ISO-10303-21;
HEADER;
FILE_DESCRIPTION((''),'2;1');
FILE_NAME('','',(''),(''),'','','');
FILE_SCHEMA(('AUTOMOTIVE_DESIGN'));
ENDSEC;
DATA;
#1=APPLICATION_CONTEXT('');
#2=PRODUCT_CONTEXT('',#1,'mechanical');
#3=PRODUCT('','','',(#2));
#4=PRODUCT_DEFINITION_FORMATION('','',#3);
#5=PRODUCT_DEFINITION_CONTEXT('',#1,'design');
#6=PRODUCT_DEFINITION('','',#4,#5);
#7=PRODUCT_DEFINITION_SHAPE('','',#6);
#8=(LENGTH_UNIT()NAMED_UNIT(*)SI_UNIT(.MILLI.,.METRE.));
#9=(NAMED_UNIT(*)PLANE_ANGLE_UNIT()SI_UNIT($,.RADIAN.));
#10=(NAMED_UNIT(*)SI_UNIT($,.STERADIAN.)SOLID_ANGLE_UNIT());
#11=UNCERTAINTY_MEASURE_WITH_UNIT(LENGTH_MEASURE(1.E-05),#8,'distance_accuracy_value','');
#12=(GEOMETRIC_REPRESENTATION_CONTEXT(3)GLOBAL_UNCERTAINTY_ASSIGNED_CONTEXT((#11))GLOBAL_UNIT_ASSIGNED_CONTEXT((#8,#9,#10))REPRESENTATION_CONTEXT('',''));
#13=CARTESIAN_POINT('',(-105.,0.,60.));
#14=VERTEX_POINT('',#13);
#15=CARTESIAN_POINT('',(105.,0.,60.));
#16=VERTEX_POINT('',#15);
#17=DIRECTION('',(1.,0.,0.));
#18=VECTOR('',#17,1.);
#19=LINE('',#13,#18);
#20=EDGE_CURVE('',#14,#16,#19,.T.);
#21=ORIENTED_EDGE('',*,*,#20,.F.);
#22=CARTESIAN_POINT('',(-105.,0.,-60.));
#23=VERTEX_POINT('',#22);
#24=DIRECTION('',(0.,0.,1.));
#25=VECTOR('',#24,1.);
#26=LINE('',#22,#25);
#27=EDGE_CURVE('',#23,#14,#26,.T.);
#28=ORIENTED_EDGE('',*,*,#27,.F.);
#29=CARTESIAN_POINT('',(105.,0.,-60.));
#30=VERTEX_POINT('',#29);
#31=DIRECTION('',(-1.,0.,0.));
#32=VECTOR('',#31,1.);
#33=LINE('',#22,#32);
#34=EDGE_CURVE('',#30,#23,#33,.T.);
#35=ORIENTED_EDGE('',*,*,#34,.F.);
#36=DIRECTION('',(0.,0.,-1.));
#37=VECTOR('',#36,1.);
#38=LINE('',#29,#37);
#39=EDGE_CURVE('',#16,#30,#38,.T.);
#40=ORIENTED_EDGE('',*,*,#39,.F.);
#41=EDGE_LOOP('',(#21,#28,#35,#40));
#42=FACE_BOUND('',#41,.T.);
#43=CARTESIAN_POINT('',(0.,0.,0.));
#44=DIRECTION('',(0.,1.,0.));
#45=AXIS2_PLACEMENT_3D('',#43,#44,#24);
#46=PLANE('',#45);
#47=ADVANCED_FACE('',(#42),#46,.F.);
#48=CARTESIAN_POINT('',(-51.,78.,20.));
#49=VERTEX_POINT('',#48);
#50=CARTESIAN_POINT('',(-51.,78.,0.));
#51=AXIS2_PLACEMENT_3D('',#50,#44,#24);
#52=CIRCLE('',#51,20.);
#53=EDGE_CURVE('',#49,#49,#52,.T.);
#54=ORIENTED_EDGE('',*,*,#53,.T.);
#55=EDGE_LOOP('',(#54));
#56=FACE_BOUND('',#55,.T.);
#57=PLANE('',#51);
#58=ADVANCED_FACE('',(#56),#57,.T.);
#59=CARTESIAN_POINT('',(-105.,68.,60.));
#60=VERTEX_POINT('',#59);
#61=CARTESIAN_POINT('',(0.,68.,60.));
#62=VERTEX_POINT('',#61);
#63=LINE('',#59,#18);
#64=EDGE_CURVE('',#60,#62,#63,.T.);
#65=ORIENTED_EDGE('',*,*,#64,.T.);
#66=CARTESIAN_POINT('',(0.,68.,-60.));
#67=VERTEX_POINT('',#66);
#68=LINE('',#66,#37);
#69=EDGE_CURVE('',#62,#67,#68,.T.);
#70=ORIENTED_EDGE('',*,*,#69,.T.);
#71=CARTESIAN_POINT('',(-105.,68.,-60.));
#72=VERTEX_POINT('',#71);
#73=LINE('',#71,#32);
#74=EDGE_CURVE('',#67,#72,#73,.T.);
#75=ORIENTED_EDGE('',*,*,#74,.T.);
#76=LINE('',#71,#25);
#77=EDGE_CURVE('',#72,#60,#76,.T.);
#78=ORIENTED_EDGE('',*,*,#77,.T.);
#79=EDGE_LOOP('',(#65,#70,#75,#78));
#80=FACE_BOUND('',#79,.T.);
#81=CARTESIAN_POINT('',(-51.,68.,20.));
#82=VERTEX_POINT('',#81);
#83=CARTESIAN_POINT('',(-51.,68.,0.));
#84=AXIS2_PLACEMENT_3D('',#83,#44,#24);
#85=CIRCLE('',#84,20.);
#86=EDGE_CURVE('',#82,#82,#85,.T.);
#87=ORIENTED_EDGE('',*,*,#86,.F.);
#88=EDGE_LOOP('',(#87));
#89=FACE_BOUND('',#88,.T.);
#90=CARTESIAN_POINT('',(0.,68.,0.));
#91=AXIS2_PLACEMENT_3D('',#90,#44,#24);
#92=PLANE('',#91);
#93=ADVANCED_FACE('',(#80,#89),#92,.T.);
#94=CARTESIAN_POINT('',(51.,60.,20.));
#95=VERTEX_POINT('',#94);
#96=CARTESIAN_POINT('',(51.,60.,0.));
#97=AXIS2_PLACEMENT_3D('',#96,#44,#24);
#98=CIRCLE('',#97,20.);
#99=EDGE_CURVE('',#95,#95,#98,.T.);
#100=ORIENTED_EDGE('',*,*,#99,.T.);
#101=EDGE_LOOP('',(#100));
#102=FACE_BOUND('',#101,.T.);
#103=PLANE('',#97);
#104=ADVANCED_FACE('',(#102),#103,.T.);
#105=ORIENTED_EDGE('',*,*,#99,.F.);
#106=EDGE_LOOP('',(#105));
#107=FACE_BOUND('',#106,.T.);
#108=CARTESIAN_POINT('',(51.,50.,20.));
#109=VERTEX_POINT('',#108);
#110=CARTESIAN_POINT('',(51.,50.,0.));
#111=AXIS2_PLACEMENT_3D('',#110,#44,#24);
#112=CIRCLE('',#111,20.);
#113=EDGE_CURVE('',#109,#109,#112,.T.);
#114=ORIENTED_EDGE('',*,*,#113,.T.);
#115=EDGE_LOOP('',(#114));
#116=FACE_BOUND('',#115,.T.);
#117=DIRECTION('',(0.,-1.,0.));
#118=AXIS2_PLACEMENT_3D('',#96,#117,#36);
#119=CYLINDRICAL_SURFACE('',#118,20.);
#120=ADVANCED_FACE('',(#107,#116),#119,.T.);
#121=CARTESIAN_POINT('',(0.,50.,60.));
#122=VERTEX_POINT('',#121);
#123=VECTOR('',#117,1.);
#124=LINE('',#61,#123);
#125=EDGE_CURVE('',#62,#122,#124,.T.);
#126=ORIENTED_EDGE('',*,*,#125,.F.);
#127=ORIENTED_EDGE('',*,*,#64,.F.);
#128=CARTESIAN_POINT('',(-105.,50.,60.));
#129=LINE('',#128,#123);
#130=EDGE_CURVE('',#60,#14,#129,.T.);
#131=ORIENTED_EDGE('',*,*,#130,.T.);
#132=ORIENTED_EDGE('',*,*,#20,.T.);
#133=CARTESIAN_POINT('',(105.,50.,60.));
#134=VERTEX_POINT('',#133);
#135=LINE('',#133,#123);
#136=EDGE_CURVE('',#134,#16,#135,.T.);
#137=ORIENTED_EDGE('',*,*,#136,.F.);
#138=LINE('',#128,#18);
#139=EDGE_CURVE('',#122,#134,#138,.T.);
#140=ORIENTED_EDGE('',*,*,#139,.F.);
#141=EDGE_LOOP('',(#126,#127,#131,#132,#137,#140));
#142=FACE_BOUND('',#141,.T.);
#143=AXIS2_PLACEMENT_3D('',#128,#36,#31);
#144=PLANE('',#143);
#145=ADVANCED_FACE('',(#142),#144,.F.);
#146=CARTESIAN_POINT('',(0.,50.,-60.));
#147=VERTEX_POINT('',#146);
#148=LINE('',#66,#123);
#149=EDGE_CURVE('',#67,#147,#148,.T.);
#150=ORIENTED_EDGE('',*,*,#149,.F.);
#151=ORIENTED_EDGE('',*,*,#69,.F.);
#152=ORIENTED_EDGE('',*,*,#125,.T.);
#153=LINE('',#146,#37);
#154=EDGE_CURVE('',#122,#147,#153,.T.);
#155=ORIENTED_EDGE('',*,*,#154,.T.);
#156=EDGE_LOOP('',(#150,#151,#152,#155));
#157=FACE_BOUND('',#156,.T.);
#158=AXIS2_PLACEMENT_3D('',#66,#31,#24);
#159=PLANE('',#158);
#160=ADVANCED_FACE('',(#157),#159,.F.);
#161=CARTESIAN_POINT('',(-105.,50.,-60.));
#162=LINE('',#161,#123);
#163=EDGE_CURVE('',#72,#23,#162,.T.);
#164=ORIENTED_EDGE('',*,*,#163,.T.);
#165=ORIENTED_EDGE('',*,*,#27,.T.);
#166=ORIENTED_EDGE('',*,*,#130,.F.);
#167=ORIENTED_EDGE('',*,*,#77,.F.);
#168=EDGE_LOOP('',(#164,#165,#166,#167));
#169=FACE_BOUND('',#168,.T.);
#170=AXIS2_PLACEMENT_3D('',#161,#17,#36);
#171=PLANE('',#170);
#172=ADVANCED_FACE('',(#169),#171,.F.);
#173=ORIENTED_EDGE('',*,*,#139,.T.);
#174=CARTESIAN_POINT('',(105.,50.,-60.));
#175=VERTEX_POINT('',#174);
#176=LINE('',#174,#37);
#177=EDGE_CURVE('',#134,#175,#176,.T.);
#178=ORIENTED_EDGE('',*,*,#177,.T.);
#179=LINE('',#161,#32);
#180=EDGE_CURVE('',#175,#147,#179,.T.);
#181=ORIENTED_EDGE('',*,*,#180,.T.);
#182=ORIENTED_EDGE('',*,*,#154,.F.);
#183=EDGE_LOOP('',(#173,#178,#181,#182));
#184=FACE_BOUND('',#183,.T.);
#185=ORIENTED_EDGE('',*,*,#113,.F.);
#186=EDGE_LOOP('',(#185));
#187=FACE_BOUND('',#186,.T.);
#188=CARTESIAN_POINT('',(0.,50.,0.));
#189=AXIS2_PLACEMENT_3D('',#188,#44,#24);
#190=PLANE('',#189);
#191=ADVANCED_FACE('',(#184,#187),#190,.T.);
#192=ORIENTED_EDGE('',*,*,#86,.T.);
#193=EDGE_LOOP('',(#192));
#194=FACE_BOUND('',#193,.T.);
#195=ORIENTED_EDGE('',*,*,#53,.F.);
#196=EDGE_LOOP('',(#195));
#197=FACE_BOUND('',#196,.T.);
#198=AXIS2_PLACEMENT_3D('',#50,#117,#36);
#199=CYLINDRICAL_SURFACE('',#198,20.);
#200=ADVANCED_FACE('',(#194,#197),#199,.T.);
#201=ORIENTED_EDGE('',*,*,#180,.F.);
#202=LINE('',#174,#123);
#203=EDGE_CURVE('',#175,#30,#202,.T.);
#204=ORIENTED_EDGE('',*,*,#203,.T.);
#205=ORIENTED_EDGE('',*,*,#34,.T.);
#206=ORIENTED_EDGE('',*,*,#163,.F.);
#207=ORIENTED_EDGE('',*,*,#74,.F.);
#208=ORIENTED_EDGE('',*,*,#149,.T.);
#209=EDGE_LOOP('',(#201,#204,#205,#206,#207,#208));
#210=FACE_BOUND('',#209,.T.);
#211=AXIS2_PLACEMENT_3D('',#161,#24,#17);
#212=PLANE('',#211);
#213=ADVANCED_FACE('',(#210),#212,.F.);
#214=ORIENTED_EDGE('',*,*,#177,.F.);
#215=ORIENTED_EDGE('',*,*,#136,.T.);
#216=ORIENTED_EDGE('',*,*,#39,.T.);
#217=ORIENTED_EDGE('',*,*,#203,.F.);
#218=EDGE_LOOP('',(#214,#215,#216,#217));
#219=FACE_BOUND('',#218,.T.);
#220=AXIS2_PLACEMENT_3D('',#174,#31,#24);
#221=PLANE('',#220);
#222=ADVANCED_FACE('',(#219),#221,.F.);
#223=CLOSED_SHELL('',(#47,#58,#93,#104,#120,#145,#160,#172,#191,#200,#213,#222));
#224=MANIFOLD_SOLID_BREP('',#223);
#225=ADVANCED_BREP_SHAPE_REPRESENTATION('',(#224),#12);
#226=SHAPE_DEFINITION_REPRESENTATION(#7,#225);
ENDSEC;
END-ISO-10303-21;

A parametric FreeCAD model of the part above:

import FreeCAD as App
import Part
import Sketcher
Q = App.Units.Quantity


def add_polygon(sketch, points):
    """Adds a closed chain of lines whose ends are joined by coincident constraints."""
    first, n = sketch.GeometryCount, len(points)
    for a, b in zip(points, points[1:] + points[:1]):
        sketch.addGeometry(Part.LineSegment(App.Vector(*a, 0), App.Vector(*b, 0)), False)
    for i in range(n):
        sketch.addConstraint(Sketcher.Constraint("Coincident", first + i, 2, first + (i + 1) % n, 1))

doc = App.newDocument("Part")
body = doc.addObject("PartDesign::Body", "Body")

sketch1 = body.newObject("Sketcher::SketchObject", "Sketch")
sketch1.AttachmentSupport = (doc.getObject("XZ_Plane"), [""])
sketch1.MapMode = "FlatFace"
add_polygon(sketch1, [(-105, -60), (-105, 60), (105, 60), (105, -60)])
sketch1.addConstraint(Sketcher.Constraint("Vertical", 0))
sketch1.addConstraint(Sketcher.Constraint("Horizontal", 1))
sketch1.addConstraint(Sketcher.Constraint("Vertical", 2))
sketch1.addConstraint(Sketcher.Constraint("Horizontal", 3))
sketch1.addConstraint(Sketcher.Constraint("Symmetric", 0, 2, 2, 2, -1, 1))
sketch1.addConstraint(Sketcher.Constraint("DistanceX", 1, 1, 1, 2, Q("210 mm")))
sketch1.addConstraint(Sketcher.Constraint("DistanceY", 0, 1, 0, 2, Q("120 mm")))
pad1 = body.newObject("PartDesign::Pad", "Pad")
pad1.Profile = sketch1
pad1.Length = 50
pad1.Reversed = True

sketch2 = body.newObject("Sketcher::SketchObject", "Sketch001")
sketch2.AttachmentSupport = (doc.getObject("XZ_Plane"), [""])
sketch2.MapMode = "FlatFace"
sketch2.AttachmentOffset = App.Placement(App.Vector(0, 0, -50), App.Rotation())
add_polygon(sketch2, [(-105, -60), (-105, 60), (0, 60), (0, -60)])
sketch2.addConstraint(Sketcher.Constraint("Vertical", 0))
sketch2.addConstraint(Sketcher.Constraint("Horizontal", 1))
sketch2.addConstraint(Sketcher.Constraint("Vertical", 2))
sketch2.addConstraint(Sketcher.Constraint("Horizontal", 3))
sketch2.addConstraint(Sketcher.Constraint("Symmetric", 1, 2, 2, 2, -1, 1))
sketch2.addConstraint(Sketcher.Constraint("DistanceX", 1, 1, 1, 2, Q("105 mm")))
sketch2.addConstraint(Sketcher.Constraint("DistanceY", 0, 1, 0, 2, Q("120 mm")))
pad2 = body.newObject("PartDesign::Pad", "Pad001")
pad2.Profile = sketch2
pad2.Length = 18
pad2.Reversed = True

sketch3 = body.newObject("Sketcher::SketchObject", "Sketch002")
sketch3.AttachmentSupport = (doc.getObject("XZ_Plane"), [""])
sketch3.MapMode = "FlatFace"
sketch3.AttachmentOffset = App.Placement(App.Vector(0, 0, -68), App.Rotation())
sketch3.addGeometry(Part.Circle(App.Vector(-51, 0, 0), App.Vector(0, 0, 1), 20), False)
sketch3.addConstraint(Sketcher.Constraint("PointOnObject", 0, 3, -1))
sketch3.addConstraint(Sketcher.Constraint("Diameter", 0, Q("40 mm")))
sketch3.addConstraint(Sketcher.Constraint("DistanceX", 0, 3, -1, 1, Q("51 mm")))
pad3 = body.newObject("PartDesign::Pad", "Pad002")
pad3.Profile = sketch3
pad3.Length = 10
pad3.Reversed = True

sketch4 = body.newObject("Sketcher::SketchObject", "Sketch003")
sketch4.AttachmentSupport = (doc.getObject("XZ_Plane"), [""])
sketch4.MapMode = "FlatFace"
sketch4.AttachmentOffset = App.Placement(App.Vector(0, 0, -50), App.Rotation())
sketch4.addGeometry(Part.Circle(App.Vector(51, 0, 0), App.Vector(0, 0, 1), 20), False)
sketch4.addConstraint(Sketcher.Constraint("PointOnObject", 0, 3, -1))
sketch4.addConstraint(Sketcher.Constraint("Diameter", 0, Q("40 mm")))
sketch4.addConstraint(Sketcher.Constraint("DistanceX", -1, 1, 0, 3, Q("51 mm")))
pad4 = body.newObject("PartDesign::Pad", "Pad003")
pad4.Profile = sketch4
pad4.Length = 10
pad4.Reversed = True

doc.recompute()
